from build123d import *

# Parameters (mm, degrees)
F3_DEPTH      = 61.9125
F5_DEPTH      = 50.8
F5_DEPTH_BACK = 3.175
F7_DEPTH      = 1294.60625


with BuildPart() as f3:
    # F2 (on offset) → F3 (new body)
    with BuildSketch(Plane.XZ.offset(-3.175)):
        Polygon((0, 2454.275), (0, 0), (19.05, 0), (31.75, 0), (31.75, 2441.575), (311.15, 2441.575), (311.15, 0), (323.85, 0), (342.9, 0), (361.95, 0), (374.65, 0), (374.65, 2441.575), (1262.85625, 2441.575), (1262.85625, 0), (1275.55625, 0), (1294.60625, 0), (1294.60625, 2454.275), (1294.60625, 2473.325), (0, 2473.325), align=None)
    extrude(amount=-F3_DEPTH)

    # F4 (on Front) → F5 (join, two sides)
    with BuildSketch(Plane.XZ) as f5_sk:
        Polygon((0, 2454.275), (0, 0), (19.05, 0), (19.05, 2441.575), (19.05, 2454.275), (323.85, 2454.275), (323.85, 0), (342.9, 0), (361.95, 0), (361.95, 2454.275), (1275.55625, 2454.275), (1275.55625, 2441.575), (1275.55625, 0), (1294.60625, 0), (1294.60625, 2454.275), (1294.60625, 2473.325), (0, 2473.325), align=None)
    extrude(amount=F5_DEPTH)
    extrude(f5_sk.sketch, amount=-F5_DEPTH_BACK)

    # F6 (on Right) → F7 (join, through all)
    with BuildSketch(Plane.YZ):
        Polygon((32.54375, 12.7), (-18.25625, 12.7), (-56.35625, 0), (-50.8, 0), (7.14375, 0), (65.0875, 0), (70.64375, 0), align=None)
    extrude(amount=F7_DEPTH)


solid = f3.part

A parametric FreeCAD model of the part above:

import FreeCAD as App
import Part
import Sketcher
from FreeCAD import Vector
Q = App.Units.Quantity


def add_polygon(sketch, points):
    """Adds a closed chain of lines whose ends are joined by coincident constraints."""
    first, n = sketch.GeometryCount, len(points)
    for a, b in zip(points, points[1:] + points[:1]):
        sketch.addGeometry(Part.LineSegment(App.Vector(*a, 0), App.Vector(*b, 0)), False)
    for i in range(n):
        sketch.addConstraint(Sketcher.Constraint("Coincident", first + i, 2, first + (i + 1) % n, 1))

doc = App.newDocument("Part")
body = doc.addObject("PartDesign::Body", "Body")

sketch1 = body.newObject("Sketcher::SketchObject", "Sketch")
sketch1.AttachmentSupport = (doc.getObject("XZ_Plane"), [""])
sketch1.MapMode = "FlatFace"
sketch1.AttachmentOffset = App.Placement(Vector(0, 0, -0.125 * 25.4), App.Rotation())
add_polygon(sketch1, [(0, 0), (31.75, 0), (31.75, 2441.575), (311.15, 2441.575), (311.15, 0), (374.65, 0), (374.65, 2441.575), (1262.85625, 2441.575), (1262.85625, 0), (1294.60625, 0), (1294.60625, 2473.325), (0, 2473.325)])
sketch1.addConstraint(Sketcher.Constraint("Horizontal", 0))
sketch1.addConstraint(Sketcher.Constraint("Vertical", 1))
sketch1.addConstraint(Sketcher.Constraint("Horizontal", 2))
sketch1.addConstraint(Sketcher.Constraint("Vertical", 3))
sketch1.addConstraint(Sketcher.Constraint("Horizontal", 4))
sketch1.addConstraint(Sketcher.Constraint("Vertical", 5))
sketch1.addConstraint(Sketcher.Constraint("Horizontal", 6))
sketch1.addConstraint(Sketcher.Constraint("Vertical", 7))
sketch1.addConstraint(Sketcher.Constraint("Horizontal", 8))
sketch1.addConstraint(Sketcher.Constraint("Vertical", 9))
sketch1.addConstraint(Sketcher.Constraint("Horizontal", 10))
sketch1.addConstraint(Sketcher.Constraint("Vertical", 11))
sketch1.addConstraint(Sketcher.Constraint("Coincident", 11, 2, -1, 1))
sketch1.addConstraint(Sketcher.Constraint("PointOnObject", 3, 2, -1))
sketch1.addConstraint(Sketcher.Constraint("PointOnObject", 7, 2, -1))
sketch1.addConstraint(Sketcher.Constraint("Horizontal", 2, 2, 5, 2))
sketch1.addConstraint(Sketcher.Constraint("Equal", 0, 8))
sketch1.addConstraint(Sketcher.Constraint("DistanceX", 2, 1, 2, 2, Q("11 in")))
sketch1.addConstraint(Sketcher.Constraint("DistanceX", 4, 1, 4, 2, Q("2.5 in")))
sketch1.addConstraint(Sketcher.Constraint("DistanceX", 0, 1, 0, 2, Q("1.25 in")))
sketch1.addConstraint(Sketcher.Constraint("DistanceX", 6, 1, 6, 2, Q("34.96875 in")))
sketch1.addConstraint(Sketcher.Constraint("DistanceY", 1, 1, 1, 2, Q("96.125 in")))
sketch1.addConstraint(Sketcher.Constraint("DistanceY", 9, 1, 9, 2, Q("97.375 in")))
pad1 = body.newObject("PartDesign::Pad", "Pad")
pad1.Profile = sketch1
pad1.Length = Q("2.4375 in")
pad1.Reversed = True

sketch2 = body.newObject("Sketcher::SketchObject", "Sketch001")
sketch2.AttachmentSupport = (doc.getObject("XZ_Plane"), [""])
sketch2.MapMode = "FlatFace"
add_polygon(sketch2, [(0, 0), (19.05, 0), (19.05, 2454.275), (323.85, 2454.275), (323.85, 0), (361.95, 0), (361.95, 2454.275), (1275.55625, 2454.275), (1275.55625, 0), (1294.60625, 0), (1294.60625, 2473.325), (0, 2473.325)])
sketch2.addConstraint(Sketcher.Constraint("Horizontal", 0))
sketch2.addConstraint(Sketcher.Constraint("Vertical", 1))
sketch2.addConstraint(Sketcher.Constraint("Horizontal", 2))
sketch2.addConstraint(Sketcher.Constraint("Vertical", 3))
sketch2.addConstraint(Sketcher.Constraint("Horizontal", 4))
sketch2.addConstraint(Sketcher.Constraint("Vertical", 5))
sketch2.addConstraint(Sketcher.Constraint("Horizontal", 6))
sketch2.addConstraint(Sketcher.Constraint("Vertical", 7))
sketch2.addConstraint(Sketcher.Constraint("Horizontal", 8))
sketch2.addConstraint(Sketcher.Constraint("Vertical", 9))
sketch2.addConstraint(Sketcher.Constraint("Horizontal", 10))
sketch2.addConstraint(Sketcher.Constraint("Vertical", 11))
sketch2.addConstraint(Sketcher.Constraint("Coincident", 11, 2, -1, 1))
sketch2.addConstraint(Sketcher.Constraint("PointOnObject", 3, 2, -1))
sketch2.addConstraint(Sketcher.Constraint("PointOnObject", 7, 2, -1))
sketch2.addConstraint(Sketcher.Constraint("Horizontal", 2, 2, 5, 2))
sketch2.addConstraint(Sketcher.Constraint("Equal", 0, 8))
sketch2.addConstraint(Sketcher.Constraint("DistanceX", 2, 1, 2, 2, Q("12 in")))
sketch2.addConstraint(Sketcher.Constraint("DistanceX", 4, 1, 4, 2, Q("1.5 in")))
sketch2.addConstraint(Sketcher.Constraint("DistanceX", 0, 1, 0, 2, Q("0.75 in")))
sketch2.addConstraint(Sketcher.Constraint("DistanceX", 6, 1, 6, 2, Q("35.96875 in")))
sketch2.addConstraint(Sketcher.Constraint("DistanceY", 1, 1, 1, 2, Q("96.625 in")))
sketch2.addConstraint(Sketcher.Constraint("DistanceY", 9, 1, 9, 2, Q("97.375 in")))
pad2 = body.newObject("PartDesign::Pad", "Pad001")
pad2.Profile = sketch2
pad2.Type = "TwoLengths"
pad2.Length = Q("2 in")
pad2.Length2 = Q("0.125 in")

sketch3 = body.newObject("Sketcher::SketchObject", "Sketch002")
sketch3.AttachmentSupport = (doc.getObject("YZ_Plane"), [""])
sketch3.MapMode = "FlatFace"
add_polygon(sketch3, [(32.54375, 12.7), (-18.25625, 12.7), (-56.35625, 0), (70.64375, 0)])
sketch3.addConstraint(Sketcher.Constraint("Horizontal", 0))
sketch3.addConstraint(Sketcher.Constraint("Horizontal", 2))
sketch3.addConstraint(Sketcher.Constraint("PointOnObject", 1, 2, -1))
sketch3.addConstraint(Sketcher.Constraint("Equal", 1, 3))
sketch3.addConstraint(Sketcher.Constraint("DistanceX", 0, 2, 0, 1, Q("2 in")))
sketch3.addConstraint(Sketcher.Constraint("DistanceX", 2, 1, 2, 2, Q("5 in")))
sketch3.addConstraint(Sketcher.Constraint("DistanceY", -1, 1, 0, 2, Q("0.5 in")))
sketch3.addConstraint(Sketcher.Constraint("DistanceX", 0, 2, -1, 1, Q("0.71875 in")))
pad3 = body.newObject("PartDesign::Pad", "Pad002")
pad3.Profile = sketch3
pad3.Type = "UpToLast"

doc.recompute()
